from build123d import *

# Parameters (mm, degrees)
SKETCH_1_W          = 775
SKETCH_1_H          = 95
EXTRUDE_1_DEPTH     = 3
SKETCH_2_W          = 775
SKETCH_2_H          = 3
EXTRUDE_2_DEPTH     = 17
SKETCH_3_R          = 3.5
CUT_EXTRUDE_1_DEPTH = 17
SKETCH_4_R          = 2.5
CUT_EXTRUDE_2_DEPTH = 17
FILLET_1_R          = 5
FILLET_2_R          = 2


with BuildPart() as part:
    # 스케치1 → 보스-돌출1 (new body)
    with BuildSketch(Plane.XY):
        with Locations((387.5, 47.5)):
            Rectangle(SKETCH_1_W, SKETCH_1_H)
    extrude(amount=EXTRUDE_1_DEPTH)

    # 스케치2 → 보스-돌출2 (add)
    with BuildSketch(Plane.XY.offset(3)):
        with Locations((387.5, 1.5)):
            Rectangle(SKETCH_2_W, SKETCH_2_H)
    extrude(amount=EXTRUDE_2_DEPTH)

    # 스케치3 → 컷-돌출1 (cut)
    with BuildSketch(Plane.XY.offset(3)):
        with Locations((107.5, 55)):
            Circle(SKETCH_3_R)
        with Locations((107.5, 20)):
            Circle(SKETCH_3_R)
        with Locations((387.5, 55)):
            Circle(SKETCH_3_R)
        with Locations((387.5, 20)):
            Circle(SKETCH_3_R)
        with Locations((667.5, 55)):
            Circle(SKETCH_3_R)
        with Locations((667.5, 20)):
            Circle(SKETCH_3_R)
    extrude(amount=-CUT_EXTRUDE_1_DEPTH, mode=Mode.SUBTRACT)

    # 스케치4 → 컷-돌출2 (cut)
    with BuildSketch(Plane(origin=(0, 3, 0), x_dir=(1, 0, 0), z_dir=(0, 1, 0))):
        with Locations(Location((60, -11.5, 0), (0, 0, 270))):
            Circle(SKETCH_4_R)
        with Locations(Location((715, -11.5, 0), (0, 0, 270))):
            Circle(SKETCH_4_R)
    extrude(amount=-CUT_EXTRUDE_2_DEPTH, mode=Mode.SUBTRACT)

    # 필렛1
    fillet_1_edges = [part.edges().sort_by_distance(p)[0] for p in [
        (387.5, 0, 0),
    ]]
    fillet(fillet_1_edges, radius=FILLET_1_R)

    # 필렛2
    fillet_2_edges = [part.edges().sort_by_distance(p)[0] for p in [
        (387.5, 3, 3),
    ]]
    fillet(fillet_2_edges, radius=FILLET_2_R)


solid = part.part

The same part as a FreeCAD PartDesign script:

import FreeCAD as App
import Part
import Sketcher


def edges_at(feature, points):
    """Names of the edges that pass closest to the given points."""
    edges = feature.Shape.Edges
    near = lambda p: min(range(len(edges)), key=lambda i: edges[i].distToShape(Part.Vertex(*p))[0])
    return sorted({f"Edge{near(p) + 1}" for p in points})


def add_polygon(sketch, points):
    """Adds a closed chain of lines whose ends are joined by coincident constraints."""
    first, n = sketch.GeometryCount, len(points)
    for a, b in zip(points, points[1:] + points[:1]):
        sketch.addGeometry(Part.LineSegment(App.Vector(*a, 0), App.Vector(*b, 0)), False)
    for i in range(n):
        sketch.addConstraint(Sketcher.Constraint("Coincident", first + i, 2, first + (i + 1) % n, 1))

doc = App.newDocument("Part")
body = doc.addObject("PartDesign::Body", "Body")

sketch1 = body.newObject("Sketcher::SketchObject", "Sketch")
sketch1.AttachmentSupport = (doc.getObject("XY_Plane"), [""])
sketch1.MapMode = "FlatFace"
add_polygon(sketch1, [(0, 95), (0, 0), (775, 0), (775, 95)])
sketch1.addConstraint([
    Sketcher.Constraint("Vertical", 0),
    Sketcher.Constraint("Horizontal", 1),
    Sketcher.Constraint("Vertical", 2),
    Sketcher.Constraint("Horizontal", 3),
    Sketcher.Constraint("Coincident", 0, 2, -1, 1),
    Sketcher.Constraint("DistanceX", 1, 1, 1, 2, 775.0),
    Sketcher.Constraint("DistanceY", 0, 2, 0, 1, 95.0),
])
pad1 = body.newObject("PartDesign::Pad", "Pad")
pad1.Profile = sketch1
pad1.Length = 3

sketch2 = body.newObject("Sketcher::SketchObject", "Sketch001")
sketch2.AttachmentSupport = (doc.getObject("XY_Plane"), [""])
sketch2.MapMode = "FlatFace"
sketch2.AttachmentOffset = App.Placement(App.Vector(0, 0, 3), App.Rotation())
add_polygon(sketch2, [(0, 3), (0, 0), (775, 0), (775, 3)])
sketch2.addConstraint([
    Sketcher.Constraint("Vertical", 0),
    Sketcher.Constraint("Horizontal", 1),
    Sketcher.Constraint("Vertical", 2),
    Sketcher.Constraint("Horizontal", 3),
    Sketcher.Constraint("Coincident", 0, 2, -1, 1),
    Sketcher.Constraint("DistanceX", 1, 1, 1, 2, 775.0),
    Sketcher.Constraint("DistanceY", 0, 2, 0, 1, 3.0),
])
pad2 = body.newObject("PartDesign::Pad", "Pad001")
pad2.Profile = sketch2
pad2.Length = 17

sketch3 = body.newObject("Sketcher::SketchObject", "Sketch002")
sketch3.AttachmentSupport = (doc.getObject("XY_Plane"), [""])
sketch3.MapMode = "FlatFace"
sketch3.AttachmentOffset = App.Placement(App.Vector(0, 0, 3), App.Rotation())
sketch3.addGeometry([
    Part.Circle(App.Vector(107.5, 55, 0), App.Vector(0, 0, 1), 3.5),
    Part.Circle(App.Vector(107.5, 20, 0), App.Vector(0, 0, 1), 3.5),
    Part.Circle(App.Vector(387.5, 55, 0), App.Vector(0, 0, 1), 3.5),
    Part.Circle(App.Vector(387.5, 20, 0), App.Vector(0, 0, 1), 3.5),
    Part.Circle(App.Vector(667.5, 55, 0), App.Vector(0, 0, 1), 3.5),
    Part.Circle(App.Vector(667.5, 20, 0), App.Vector(0, 0, 1), 3.5),
], False)
sketch3.addConstraint([
    Sketcher.Constraint("Equal", 0, 1),
    Sketcher.Constraint("Equal", 1, 2),
    Sketcher.Constraint("Equal", 2, 3),
    Sketcher.Constraint("Equal", 3, 4),
    Sketcher.Constraint("Equal", 4, 5),
    Sketcher.Constraint("Horizontal", 0, 3, 2, 3),
    Sketcher.Constraint("Horizontal", 1, 3, 3, 3),
    Sketcher.Constraint("Horizontal", 2, 3, 4, 3),
    Sketcher.Constraint("Horizontal", 3, 3, 5, 3),
    Sketcher.Constraint("Vertical", 0, 3, 1, 3),
    Sketcher.Constraint("Vertical", 2, 3, 3, 3),
    Sketcher.Constraint("Vertical", 4, 3, 5, 3),
    Sketcher.Constraint("Diameter", 0, 7.0),
    Sketcher.Constraint("DistanceY", -1, 1, 0, 3, 55.0),
    Sketcher.Constraint("DistanceY", -1, 1, 1, 3, 20.0),
    Sketcher.Constraint("DistanceX", 0, 3, 2, 3, 280.0),
    Sketcher.Constraint("DistanceX", 2, 3, 4, 3, 280.0),
    Sketcher.Constraint("DistanceX", -1, 1, 0, 3, 107.5),
])
pocket1 = body.newObject("PartDesign::Pocket", "Pocket")
pocket1.Profile = sketch3
pocket1.Length = 17

sketch4 = body.newObject("Sketcher::SketchObject", "Sketch003")
sketch4.AttachmentSupport = (doc.getObject("XZ_Plane"), [""])
sketch4.MapMode = "FlatFace"
sketch4.AttachmentOffset = App.Placement(App.Vector(0, 0, -3), App.Rotation())
sketch4.addGeometry([
    Part.Circle(App.Vector(60, 11.5, 0), App.Vector(0, 0, 1), 2.5),
    Part.Circle(App.Vector(715, 11.5, 0), App.Vector(0, 0, 1), 2.5),
], False)
sketch4.addConstraint([
    Sketcher.Constraint("Equal", 0, 1),
    Sketcher.Constraint("Horizontal", 0, 3, 1, 3),
    Sketcher.Constraint("Diameter", 0, 5.0),
    Sketcher.Constraint("DistanceX", -1, 1, 0, 3, 60.0),
    Sketcher.Constraint("DistanceX", -1, 1, 1, 3, 715.0),
    Sketcher.Constraint("DistanceY", -1, 1, 0, 3, 11.5),
])
pocket2 = body.newObject("PartDesign::Pocket", "Pocket001")
pocket2.Profile = sketch4
pocket2.Length = 17
pocket2.Reversed = True
doc.recompute()

fillet = body.newObject("PartDesign::Fillet", "Fillet")
fillet.Base = (pocket2, edges_at(pocket2, [(387.5, 0, 0)]))
fillet.Radius = 5
doc.recompute()

fillet2 = body.newObject("PartDesign::Fillet", "Fillet001")
fillet2.Base = (fillet, edges_at(fillet, [(387.5, 3, 3)]))
fillet2.Radius = 2

doc.recompute()
